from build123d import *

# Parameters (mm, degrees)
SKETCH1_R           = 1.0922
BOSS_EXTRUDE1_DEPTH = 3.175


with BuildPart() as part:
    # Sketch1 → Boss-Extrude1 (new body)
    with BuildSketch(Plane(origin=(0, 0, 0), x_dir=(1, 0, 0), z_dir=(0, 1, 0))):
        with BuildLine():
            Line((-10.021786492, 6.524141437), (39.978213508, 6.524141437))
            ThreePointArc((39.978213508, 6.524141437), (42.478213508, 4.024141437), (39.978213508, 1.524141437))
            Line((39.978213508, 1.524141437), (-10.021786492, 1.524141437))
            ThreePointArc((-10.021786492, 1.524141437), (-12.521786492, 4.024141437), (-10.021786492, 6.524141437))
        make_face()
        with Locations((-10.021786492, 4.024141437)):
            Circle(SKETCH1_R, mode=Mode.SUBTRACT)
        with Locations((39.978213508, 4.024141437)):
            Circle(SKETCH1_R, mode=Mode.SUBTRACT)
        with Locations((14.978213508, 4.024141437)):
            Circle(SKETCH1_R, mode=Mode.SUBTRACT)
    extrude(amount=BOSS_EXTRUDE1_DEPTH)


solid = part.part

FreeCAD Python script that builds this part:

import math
import FreeCAD as App
import Part
import Sketcher
from FreeCAD import Vector

doc = App.newDocument("Part")
params = doc.addObject("Spreadsheet::Sheet", "Params")
for row, (alias, value) in enumerate([
    ("sketch1_radius", "2.5 mm"),
    ("sketch1_width", "50 mm"),
    ("pad1_length", "3.175 mm"),
], start=1):
    params.set(f"A{row}", alias)
    params.set(f"B{row}", "=" + value)
    params.setAlias(f"B{row}", alias)

body = doc.addObject("PartDesign::Body", "Body")

# Sketch on XZ plane
sketch1 = doc.addObject("Sketcher::SketchObject", "Sketch")
body.addObject(sketch1)
sketch1.AttachmentSupport = (doc.XZ_Plane, [""])
sketch1.MapMode = "FlatFace"
sketch1.addGeometry([
    Part.LineSegment(Vector(39.978214, -6.524141, 0), Vector(-10.021786, -6.524141, 0)),  # 0
    Part.ArcOfCircle(Part.Circle(Vector(-10.021786, -4.024141, 0), Vector(0, 0, 1), 2.5), math.radians(90), math.radians(270)),  # 1
    Part.LineSegment(Vector(-10.021786, -1.524141, 0), Vector(39.978214, -1.524141, 0)),  # 2
    Part.ArcOfCircle(Part.Circle(Vector(39.978214, -4.024141, 0), Vector(0, 0, 1), 2.5), math.radians(-90), math.radians(90)),  # 3
    Part.Circle(Vector(39.978214, -4.024141, 0), Vector(0, 0, 1), 1.0922),  # 4
    Part.Circle(Vector(14.978214, -4.024141, 0), Vector(0, 0, 1), 1.0922),  # 5
    Part.Circle(Vector(-10.021786, -4.024141, 0), Vector(0, 0, 1), 1.0922),  # 6
], False)
sketch1.addConstraint([
    Sketcher.Constraint("Tangent", 0, 2, 1, 2),
    Sketcher.Constraint("Tangent", 1, 1, 2, 1),
    Sketcher.Constraint("Tangent", 2, 2, 3, 2),
    Sketcher.Constraint("Tangent", 3, 1, 0, 1),
    Sketcher.Constraint("Horizontal", 0),
    Sketcher.Constraint("Horizontal", 2),
    Sketcher.Constraint("Coincident", 4, 3, 3, 3),
    Sketcher.Constraint("Coincident", 6, 3, 1, 3),
    Sketcher.Constraint("Equal", 4, 5),
    Sketcher.Constraint("Equal", 5, 6),
    Sketcher.Constraint("Horizontal", 4, 3, 5, 3),
    Sketcher.Constraint("Radius", 1, 2.5),
    Sketcher.Constraint("DistanceX", 0, 2, 0, 1, 50.0),
    Sketcher.Constraint("DistanceX", 1, 3, 5, 3, 25.0),
    Sketcher.Constraint("Diameter", 4, 2.1844),
    Sketcher.Constraint("DistanceY", 1, 3, -1, 1, 4.024141),
    Sketcher.Constraint("DistanceX", 1, 3, -1, 1, 10.021786),
])
sketch1.setExpression("Constraints[11]", "Params.sketch1_radius")
sketch1.setExpression("Constraints[12]", "Params.sketch1_width")
pad1 = doc.addObject("PartDesign::Pad", "Pad")
body.addObject(pad1)
pad1.Profile = sketch1
pad1.setExpression("Length", "Params.pad1_length")
pad1.Reversed = True

doc.recompute()
